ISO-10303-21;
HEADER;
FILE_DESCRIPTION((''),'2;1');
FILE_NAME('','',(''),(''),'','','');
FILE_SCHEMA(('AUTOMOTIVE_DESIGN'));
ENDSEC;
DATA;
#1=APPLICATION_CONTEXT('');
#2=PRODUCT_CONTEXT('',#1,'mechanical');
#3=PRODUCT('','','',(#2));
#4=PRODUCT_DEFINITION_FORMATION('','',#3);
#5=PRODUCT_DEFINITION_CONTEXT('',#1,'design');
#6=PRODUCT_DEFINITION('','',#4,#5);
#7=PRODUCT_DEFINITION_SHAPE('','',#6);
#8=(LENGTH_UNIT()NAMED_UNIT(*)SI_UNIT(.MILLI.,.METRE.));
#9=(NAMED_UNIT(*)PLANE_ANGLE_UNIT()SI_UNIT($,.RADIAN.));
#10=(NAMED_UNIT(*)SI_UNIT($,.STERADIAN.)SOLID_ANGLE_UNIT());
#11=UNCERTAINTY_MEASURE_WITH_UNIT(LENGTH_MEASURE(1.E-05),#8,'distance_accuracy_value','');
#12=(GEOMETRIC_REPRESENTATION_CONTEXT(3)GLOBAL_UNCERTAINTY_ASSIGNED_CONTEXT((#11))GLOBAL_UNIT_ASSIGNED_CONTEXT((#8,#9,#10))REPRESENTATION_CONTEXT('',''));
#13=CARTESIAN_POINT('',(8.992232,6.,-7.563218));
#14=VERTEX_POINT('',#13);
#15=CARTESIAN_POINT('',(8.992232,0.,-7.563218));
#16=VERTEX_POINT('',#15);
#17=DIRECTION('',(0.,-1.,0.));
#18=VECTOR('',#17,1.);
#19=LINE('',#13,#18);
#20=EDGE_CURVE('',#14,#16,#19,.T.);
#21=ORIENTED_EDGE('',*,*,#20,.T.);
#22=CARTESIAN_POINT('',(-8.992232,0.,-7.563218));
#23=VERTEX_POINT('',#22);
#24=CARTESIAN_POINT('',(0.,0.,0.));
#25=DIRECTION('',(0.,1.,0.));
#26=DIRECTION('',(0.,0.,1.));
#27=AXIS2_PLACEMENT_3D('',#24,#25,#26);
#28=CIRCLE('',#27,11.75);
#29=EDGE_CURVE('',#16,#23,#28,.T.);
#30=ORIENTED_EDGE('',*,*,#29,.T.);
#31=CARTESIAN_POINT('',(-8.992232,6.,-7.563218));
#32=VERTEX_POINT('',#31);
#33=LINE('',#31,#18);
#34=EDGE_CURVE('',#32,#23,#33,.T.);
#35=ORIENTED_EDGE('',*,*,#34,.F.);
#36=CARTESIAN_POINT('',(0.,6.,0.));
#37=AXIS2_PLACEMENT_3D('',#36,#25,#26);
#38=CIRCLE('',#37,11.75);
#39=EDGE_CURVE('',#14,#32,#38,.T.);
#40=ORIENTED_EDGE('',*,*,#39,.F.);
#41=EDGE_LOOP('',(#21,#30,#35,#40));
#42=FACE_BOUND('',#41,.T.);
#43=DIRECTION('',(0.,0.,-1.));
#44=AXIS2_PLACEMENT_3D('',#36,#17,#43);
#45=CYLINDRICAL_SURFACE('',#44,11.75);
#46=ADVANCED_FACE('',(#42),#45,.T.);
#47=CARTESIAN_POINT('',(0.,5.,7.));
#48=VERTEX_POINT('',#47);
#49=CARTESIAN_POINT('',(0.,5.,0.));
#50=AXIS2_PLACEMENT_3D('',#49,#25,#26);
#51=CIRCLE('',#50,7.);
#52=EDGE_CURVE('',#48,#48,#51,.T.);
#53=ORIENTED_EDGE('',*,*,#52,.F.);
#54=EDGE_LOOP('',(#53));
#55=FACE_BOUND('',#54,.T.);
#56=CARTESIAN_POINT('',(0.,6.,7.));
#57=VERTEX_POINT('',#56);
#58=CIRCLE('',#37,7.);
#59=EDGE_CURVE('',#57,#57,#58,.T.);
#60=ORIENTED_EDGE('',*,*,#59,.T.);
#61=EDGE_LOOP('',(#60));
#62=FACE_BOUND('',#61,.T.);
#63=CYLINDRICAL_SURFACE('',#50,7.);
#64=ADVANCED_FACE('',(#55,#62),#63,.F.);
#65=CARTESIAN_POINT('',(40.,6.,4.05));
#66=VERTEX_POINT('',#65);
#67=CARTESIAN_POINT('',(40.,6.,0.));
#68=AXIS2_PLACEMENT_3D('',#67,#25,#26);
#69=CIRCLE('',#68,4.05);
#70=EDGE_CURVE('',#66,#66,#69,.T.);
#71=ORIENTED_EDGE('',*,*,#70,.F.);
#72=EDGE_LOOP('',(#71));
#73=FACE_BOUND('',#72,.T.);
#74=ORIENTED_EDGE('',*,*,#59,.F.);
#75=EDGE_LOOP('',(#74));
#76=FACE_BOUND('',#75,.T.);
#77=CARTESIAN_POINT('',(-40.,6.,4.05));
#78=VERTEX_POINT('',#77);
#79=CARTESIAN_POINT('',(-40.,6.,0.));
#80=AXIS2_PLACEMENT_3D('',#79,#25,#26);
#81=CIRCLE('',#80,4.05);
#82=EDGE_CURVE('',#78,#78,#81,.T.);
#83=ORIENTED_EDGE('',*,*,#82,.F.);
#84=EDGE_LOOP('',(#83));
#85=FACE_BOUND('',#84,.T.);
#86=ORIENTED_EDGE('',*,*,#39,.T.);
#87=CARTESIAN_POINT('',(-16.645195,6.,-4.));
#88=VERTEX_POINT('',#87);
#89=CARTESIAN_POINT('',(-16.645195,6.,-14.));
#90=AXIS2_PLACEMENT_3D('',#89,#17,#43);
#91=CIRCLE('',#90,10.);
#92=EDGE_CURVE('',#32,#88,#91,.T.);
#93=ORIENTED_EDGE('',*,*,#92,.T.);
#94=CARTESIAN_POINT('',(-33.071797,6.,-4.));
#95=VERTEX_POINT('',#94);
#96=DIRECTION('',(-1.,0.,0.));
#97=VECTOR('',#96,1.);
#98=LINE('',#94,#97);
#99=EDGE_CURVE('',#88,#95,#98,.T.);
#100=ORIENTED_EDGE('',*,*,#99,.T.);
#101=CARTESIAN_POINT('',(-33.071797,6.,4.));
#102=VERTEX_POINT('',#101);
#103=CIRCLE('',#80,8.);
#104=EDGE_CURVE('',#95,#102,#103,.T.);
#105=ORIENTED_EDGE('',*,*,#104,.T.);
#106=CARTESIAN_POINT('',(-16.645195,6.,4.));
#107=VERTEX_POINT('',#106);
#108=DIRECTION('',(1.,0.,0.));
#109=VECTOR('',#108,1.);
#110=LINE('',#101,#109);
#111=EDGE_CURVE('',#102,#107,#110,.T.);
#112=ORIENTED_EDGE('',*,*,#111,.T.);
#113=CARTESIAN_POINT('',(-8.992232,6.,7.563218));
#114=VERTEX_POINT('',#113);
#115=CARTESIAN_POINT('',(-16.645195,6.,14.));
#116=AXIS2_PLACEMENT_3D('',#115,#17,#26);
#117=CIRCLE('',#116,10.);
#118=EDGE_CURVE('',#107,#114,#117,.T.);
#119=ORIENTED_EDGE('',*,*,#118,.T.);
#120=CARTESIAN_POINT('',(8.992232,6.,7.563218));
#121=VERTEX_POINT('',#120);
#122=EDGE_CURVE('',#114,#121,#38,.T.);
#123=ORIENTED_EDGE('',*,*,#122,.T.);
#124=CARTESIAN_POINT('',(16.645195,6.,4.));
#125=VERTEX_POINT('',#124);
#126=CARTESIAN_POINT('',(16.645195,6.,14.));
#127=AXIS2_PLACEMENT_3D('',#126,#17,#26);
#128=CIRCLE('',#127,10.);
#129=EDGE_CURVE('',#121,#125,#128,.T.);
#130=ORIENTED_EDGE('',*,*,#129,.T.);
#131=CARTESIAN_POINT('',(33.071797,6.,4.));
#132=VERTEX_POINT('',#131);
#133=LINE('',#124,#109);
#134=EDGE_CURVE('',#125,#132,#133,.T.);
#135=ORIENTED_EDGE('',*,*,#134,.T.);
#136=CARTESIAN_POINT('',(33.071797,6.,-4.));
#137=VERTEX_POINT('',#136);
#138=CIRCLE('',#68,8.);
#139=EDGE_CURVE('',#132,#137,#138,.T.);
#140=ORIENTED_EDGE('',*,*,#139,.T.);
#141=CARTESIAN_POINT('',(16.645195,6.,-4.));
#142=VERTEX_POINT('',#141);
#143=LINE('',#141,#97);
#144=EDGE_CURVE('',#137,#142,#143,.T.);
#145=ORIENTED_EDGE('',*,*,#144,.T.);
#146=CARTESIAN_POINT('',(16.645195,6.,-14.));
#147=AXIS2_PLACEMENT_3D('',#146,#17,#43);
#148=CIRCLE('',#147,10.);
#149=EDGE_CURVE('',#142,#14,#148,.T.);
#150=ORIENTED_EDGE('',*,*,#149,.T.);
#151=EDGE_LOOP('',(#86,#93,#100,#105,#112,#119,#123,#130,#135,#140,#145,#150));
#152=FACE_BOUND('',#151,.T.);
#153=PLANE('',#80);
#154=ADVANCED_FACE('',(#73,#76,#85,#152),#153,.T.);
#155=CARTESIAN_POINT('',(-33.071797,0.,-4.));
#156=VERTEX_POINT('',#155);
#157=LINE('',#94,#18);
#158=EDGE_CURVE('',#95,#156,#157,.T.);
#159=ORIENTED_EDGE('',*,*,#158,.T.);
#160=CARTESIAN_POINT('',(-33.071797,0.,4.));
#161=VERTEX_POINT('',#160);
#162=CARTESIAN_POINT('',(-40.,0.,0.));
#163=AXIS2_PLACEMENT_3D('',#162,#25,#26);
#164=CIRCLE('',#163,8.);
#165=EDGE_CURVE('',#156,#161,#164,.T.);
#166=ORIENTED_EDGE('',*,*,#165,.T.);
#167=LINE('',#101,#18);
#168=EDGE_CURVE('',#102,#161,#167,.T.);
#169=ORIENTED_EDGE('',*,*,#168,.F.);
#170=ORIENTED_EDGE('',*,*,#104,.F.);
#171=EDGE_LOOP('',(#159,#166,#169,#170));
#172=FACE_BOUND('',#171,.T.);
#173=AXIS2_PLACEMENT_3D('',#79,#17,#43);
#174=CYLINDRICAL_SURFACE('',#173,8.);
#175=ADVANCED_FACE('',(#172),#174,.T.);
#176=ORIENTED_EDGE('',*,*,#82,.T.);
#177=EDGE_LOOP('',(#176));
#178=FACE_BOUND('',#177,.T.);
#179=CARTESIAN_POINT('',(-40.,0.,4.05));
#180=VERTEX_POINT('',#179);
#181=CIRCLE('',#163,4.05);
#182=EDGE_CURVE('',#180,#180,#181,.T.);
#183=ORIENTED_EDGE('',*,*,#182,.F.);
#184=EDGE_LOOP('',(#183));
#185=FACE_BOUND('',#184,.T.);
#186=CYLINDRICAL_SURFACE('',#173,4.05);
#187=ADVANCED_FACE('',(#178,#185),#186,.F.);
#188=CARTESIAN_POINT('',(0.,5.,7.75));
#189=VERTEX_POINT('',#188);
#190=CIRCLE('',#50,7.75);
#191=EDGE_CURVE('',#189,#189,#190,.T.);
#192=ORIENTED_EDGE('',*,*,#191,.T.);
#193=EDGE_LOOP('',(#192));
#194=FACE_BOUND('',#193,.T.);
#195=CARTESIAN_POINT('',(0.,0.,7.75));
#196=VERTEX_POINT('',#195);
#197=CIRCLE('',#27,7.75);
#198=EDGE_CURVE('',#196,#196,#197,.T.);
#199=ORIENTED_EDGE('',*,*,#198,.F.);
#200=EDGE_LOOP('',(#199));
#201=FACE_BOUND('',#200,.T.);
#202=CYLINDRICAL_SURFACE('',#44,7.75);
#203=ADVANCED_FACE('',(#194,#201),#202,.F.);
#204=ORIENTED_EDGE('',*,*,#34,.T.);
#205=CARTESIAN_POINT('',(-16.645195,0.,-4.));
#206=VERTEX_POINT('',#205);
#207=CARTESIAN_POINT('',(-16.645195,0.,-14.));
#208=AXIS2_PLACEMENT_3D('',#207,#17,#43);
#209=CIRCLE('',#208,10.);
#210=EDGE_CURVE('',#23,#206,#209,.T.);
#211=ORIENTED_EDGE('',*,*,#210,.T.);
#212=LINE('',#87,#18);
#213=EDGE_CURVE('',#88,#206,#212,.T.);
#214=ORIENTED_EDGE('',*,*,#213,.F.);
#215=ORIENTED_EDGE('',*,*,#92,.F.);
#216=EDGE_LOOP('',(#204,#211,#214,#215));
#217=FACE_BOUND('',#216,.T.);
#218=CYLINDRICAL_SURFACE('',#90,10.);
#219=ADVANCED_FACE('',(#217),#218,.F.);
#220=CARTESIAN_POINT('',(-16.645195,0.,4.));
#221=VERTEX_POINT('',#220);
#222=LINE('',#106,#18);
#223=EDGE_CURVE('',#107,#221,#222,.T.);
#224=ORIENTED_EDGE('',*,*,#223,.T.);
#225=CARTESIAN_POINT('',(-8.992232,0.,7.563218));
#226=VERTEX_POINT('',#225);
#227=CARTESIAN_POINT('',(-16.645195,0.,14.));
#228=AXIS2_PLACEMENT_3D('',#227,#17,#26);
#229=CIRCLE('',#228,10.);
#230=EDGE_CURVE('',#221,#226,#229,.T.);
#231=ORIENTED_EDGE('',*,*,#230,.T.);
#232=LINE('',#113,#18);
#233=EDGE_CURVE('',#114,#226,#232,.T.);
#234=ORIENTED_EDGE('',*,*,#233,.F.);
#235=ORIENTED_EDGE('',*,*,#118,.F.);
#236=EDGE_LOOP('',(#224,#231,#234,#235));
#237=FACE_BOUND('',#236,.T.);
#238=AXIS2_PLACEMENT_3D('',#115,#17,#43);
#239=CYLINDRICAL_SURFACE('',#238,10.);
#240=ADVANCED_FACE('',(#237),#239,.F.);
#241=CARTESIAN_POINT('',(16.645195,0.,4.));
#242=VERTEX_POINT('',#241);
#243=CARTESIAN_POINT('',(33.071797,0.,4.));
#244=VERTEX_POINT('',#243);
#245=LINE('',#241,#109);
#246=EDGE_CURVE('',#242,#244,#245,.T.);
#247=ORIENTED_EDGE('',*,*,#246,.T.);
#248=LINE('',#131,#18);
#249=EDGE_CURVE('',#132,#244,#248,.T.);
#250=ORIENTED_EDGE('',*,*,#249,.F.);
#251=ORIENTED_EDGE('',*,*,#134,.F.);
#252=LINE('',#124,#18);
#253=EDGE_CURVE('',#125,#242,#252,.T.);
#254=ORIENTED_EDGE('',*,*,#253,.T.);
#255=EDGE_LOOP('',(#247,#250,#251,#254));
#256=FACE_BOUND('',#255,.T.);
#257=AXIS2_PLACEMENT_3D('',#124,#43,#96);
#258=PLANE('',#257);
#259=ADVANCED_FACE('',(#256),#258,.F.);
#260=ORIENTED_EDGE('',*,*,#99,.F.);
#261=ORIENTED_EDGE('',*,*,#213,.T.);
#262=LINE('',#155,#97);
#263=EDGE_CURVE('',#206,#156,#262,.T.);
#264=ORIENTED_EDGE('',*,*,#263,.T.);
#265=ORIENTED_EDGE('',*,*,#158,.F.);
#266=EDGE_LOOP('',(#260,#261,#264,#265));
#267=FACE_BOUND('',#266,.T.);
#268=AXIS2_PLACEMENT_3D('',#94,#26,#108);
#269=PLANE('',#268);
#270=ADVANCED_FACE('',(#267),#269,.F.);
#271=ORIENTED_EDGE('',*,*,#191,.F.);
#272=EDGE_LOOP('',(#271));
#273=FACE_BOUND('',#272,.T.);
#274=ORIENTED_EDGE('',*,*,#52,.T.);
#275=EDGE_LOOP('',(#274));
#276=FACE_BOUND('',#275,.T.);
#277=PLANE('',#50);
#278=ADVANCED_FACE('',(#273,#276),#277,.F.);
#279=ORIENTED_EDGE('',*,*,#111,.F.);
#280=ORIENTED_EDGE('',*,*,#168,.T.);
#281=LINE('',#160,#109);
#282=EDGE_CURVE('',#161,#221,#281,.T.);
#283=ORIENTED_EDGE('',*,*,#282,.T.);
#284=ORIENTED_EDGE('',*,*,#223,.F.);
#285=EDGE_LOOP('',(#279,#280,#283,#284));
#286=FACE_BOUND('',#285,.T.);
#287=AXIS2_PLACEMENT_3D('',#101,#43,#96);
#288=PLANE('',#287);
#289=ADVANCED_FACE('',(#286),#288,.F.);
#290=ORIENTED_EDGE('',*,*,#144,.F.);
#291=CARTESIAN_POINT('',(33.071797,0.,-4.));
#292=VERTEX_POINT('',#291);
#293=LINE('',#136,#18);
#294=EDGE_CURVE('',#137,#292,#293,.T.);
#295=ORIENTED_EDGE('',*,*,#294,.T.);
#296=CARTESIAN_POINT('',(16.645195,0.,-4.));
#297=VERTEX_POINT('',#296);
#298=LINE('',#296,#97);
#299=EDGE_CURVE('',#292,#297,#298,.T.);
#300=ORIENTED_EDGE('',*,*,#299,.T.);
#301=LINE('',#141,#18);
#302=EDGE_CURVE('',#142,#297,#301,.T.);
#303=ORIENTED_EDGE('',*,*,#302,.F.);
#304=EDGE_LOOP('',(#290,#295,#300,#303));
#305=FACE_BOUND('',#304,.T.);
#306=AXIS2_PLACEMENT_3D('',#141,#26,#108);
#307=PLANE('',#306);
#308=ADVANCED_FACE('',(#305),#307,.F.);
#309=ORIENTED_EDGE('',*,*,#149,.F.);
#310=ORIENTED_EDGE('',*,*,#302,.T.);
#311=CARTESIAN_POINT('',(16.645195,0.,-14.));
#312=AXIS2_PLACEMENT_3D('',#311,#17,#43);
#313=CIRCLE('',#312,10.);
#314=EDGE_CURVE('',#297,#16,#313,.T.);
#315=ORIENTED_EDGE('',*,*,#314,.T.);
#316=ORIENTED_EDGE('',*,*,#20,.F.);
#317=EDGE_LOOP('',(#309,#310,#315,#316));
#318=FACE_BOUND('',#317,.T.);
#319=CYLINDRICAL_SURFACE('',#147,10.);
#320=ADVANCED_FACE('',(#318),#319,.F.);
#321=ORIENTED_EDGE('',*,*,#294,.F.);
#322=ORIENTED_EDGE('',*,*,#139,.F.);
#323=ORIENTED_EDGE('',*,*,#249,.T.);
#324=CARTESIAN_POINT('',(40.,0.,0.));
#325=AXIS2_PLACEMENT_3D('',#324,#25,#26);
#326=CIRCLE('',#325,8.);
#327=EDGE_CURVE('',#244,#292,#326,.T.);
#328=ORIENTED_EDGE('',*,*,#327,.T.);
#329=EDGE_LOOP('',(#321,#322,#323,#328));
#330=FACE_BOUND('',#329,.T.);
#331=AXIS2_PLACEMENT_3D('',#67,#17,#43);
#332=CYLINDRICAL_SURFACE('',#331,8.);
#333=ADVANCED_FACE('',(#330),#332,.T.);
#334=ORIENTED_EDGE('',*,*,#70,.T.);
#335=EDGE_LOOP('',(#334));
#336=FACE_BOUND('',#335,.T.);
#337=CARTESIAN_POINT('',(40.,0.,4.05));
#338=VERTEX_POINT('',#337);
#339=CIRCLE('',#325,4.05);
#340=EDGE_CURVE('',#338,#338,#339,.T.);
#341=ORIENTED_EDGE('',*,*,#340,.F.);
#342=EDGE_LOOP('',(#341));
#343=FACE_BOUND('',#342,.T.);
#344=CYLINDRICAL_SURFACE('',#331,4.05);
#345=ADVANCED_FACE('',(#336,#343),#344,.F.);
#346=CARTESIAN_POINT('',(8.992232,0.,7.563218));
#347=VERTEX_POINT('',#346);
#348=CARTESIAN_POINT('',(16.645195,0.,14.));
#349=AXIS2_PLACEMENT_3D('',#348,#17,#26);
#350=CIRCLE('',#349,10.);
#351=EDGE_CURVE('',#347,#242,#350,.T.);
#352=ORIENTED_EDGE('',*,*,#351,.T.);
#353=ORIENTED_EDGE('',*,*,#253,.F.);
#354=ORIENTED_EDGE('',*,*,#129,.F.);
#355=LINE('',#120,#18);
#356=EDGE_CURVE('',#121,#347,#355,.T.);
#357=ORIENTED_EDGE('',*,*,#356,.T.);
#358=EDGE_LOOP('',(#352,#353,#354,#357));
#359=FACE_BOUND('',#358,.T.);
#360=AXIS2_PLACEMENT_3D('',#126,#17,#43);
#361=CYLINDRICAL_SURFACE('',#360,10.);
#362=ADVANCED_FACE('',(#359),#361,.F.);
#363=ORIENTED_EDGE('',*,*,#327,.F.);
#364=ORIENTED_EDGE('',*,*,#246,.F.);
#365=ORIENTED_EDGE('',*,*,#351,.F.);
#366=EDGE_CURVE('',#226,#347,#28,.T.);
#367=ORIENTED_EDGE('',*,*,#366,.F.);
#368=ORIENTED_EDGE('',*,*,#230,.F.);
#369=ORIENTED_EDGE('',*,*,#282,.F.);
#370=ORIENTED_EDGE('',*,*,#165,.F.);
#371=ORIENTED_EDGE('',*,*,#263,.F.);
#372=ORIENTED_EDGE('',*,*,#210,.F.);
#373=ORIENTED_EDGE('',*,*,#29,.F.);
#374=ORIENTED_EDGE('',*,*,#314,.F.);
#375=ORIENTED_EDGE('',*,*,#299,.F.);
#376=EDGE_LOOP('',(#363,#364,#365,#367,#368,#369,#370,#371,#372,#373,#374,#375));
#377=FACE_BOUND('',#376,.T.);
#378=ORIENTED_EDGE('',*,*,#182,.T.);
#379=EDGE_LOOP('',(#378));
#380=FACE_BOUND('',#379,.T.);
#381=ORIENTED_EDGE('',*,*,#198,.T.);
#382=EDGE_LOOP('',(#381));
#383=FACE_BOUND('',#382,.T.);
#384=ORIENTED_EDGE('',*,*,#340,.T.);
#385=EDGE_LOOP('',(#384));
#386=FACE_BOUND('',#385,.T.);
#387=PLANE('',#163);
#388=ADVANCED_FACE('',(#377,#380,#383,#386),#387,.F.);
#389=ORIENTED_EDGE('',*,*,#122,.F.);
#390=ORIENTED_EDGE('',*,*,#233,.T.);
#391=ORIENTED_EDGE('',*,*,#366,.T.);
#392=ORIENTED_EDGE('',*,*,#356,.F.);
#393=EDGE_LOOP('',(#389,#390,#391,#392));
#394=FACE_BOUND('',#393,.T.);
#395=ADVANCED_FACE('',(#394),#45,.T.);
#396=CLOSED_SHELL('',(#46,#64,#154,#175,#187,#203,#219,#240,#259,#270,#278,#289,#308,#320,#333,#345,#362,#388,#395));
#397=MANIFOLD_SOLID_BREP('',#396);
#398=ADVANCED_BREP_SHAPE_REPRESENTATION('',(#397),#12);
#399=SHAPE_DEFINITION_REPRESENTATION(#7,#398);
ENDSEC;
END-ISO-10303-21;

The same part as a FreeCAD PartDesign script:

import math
import FreeCAD as App
import Part
import Sketcher
from FreeCAD import Vector

doc = App.newDocument("Part")
body = doc.addObject("PartDesign::Body", "Body")

sketch1 = body.newObject("Sketcher::SketchObject", "Sketch")
sketch1.AttachmentSupport = (doc.getObject("XZ_Plane"), [""])
sketch1.MapMode = "FlatFace"
sketch1.addGeometry([
    Part.LineSegment(Vector(-16.6, -4, 0), Vector(-33.1, -4, 0)),
    Part.ArcOfCircle(Part.Circle(Vector(-40, 0, 0), Vector(0, 0, 1), 8), math.radians(30), math.radians(330)),
    Part.LineSegment(Vector(-33.1, 4, 0), Vector(-16.6, 4, 0)),
    Part.ArcOfCircle(Part.Circle(Vector(-16.6, 14, 0), Vector(0, 0, 1), 10), math.radians(-90), math.radians(-40)),
    Part.ArcOfCircle(Part.Circle(Vector(0, 0, 0), Vector(0, 0, 1), 11.7), math.radians(40), math.radians(140)),
    Part.ArcOfCircle(Part.Circle(Vector(16.6, 14, 0), Vector(0, 0, 1), 10), math.radians(-140), math.radians(-90)),
    Part.LineSegment(Vector(16.6, 4, 0), Vector(33.1, 4, 0)),
    Part.ArcOfCircle(Part.Circle(Vector(40, 0, 0), Vector(0, 0, 1), 8), math.radians(-150), math.radians(150)),
    Part.LineSegment(Vector(33.1, -4, 0), Vector(16.6, -4, 0)),
    Part.ArcOfCircle(Part.Circle(Vector(16.6, -14, 0), Vector(0, 0, 1), 10), math.radians(90), math.radians(140)),
    Part.ArcOfCircle(Part.Circle(Vector(0, 0, 0), Vector(0, 0, 1), 11.7), math.radians(-140), math.radians(-40)),
    Part.ArcOfCircle(Part.Circle(Vector(-16.6, -14, 0), Vector(0, 0, 1), 10), math.radians(40), math.radians(90)),
    Part.Circle(Vector(40, 0, 0), Vector(0, 0, 1), 4),
    Part.Circle(Vector(0, 0, 0), Vector(0, 0, 1), 7.8),
    Part.Circle(Vector(-40, 0, 0), Vector(0, 0, 1), 4),
], False)
sketch1.addConstraint([
    Sketcher.Constraint("Coincident", 0, 2, 1, 2),
    Sketcher.Constraint("Coincident", 1, 1, 2, 1),
    Sketcher.Constraint("Tangent", 2, 2, 3, 1),
    Sketcher.Constraint("Tangent", 3, 2, 4, 2),
    Sketcher.Constraint("Tangent", 4, 1, 5, 1),
    Sketcher.Constraint("Tangent", 5, 2, 6, 1),
    Sketcher.Constraint("Coincident", 6, 2, 7, 2),
    Sketcher.Constraint("Coincident", 7, 1, 8, 1),
    Sketcher.Constraint("Tangent", 8, 2, 9, 1),
    Sketcher.Constraint("Tangent", 9, 2, 10, 2),
    Sketcher.Constraint("Tangent", 10, 1, 11, 1),
    Sketcher.Constraint("Tangent", 11, 2, 0, 1),
    Sketcher.Constraint("Horizontal", 0),
    Sketcher.Constraint("Horizontal", 2),
    Sketcher.Constraint("Horizontal", 6),
    Sketcher.Constraint("Horizontal", 8),
    Sketcher.Constraint("Coincident", 4, 3, -1, 1),
    Sketcher.Constraint("Coincident", 10, 3, -1, 1),
    Sketcher.Constraint("Coincident", 13, 3, -1, 1),
    Sketcher.Constraint("Coincident", 12, 3, 7, 3),
    Sketcher.Constraint("Coincident", 14, 3, 1, 3),
    Sketcher.Constraint("Equal", 3, 5),
    Sketcher.Constraint("Equal", 1, 7),
    Sketcher.Constraint("Equal", 5, 9),
    Sketcher.Constraint("Equal", 4, 10),
    Sketcher.Constraint("Equal", 9, 11),
    Sketcher.Constraint("Equal", 12, 14),
    Sketcher.Constraint("Symmetric", 1, 3, 7, 3, -1, 1),
    Sketcher.Constraint("Symmetric", 1, 1, 6, 2, -2),
    Sketcher.Constraint("Horizontal", 9, 3, 11, 3),
    Sketcher.Constraint("Vertical", 5, 3, 9, 3),
    Sketcher.Constraint("Radius", 1, 8.0),
    Sketcher.Constraint("Radius", 3, 10.0),
    Sketcher.Constraint("Diameter", 12, 8.1),
    Sketcher.Constraint("Diameter", 13, 15.5),
    Sketcher.Constraint("Radius", 4, 11.75),
    Sketcher.Constraint("DistanceX", 1, 3, -1, 1, 40.0),
    Sketcher.Constraint("DistanceY", -1, 1, 3, 3, 14.0),
])
pad1 = body.newObject("PartDesign::Pad", "Pad")
pad1.Profile = sketch1
pad1.Length = 6
pad1.Reversed = True

sketch2 = body.newObject("Sketcher::SketchObject", "Sketch001")
sketch2.AttachmentSupport = (doc.getObject("XZ_Plane"), [""])
sketch2.MapMode = "FlatFace"
sketch2.AttachmentOffset = App.Placement(Vector(0, 0, -5), App.Rotation())
sketch2.addGeometry([
    Part.Circle(Vector(0, 0, 0), Vector(0, 0, 1), 8),
    Part.Circle(Vector(0, 0, 0), Vector(0, 0, 1), 7),
], False)
sketch2.addConstraint([
    Sketcher.Constraint("Coincident", 0, 3, -1, 1),
    Sketcher.Constraint("Coincident", 1, 3, -1, 1),
    Sketcher.Constraint("Diameter", 1, 14.0),
    Sketcher.Constraint("Diameter", 0, 15.5),
])
pad2 = body.newObject("PartDesign::Pad", "Pad001")
pad2.Profile = sketch2
pad2.Length = 1
pad2.Reversed = True

doc.recompute()
